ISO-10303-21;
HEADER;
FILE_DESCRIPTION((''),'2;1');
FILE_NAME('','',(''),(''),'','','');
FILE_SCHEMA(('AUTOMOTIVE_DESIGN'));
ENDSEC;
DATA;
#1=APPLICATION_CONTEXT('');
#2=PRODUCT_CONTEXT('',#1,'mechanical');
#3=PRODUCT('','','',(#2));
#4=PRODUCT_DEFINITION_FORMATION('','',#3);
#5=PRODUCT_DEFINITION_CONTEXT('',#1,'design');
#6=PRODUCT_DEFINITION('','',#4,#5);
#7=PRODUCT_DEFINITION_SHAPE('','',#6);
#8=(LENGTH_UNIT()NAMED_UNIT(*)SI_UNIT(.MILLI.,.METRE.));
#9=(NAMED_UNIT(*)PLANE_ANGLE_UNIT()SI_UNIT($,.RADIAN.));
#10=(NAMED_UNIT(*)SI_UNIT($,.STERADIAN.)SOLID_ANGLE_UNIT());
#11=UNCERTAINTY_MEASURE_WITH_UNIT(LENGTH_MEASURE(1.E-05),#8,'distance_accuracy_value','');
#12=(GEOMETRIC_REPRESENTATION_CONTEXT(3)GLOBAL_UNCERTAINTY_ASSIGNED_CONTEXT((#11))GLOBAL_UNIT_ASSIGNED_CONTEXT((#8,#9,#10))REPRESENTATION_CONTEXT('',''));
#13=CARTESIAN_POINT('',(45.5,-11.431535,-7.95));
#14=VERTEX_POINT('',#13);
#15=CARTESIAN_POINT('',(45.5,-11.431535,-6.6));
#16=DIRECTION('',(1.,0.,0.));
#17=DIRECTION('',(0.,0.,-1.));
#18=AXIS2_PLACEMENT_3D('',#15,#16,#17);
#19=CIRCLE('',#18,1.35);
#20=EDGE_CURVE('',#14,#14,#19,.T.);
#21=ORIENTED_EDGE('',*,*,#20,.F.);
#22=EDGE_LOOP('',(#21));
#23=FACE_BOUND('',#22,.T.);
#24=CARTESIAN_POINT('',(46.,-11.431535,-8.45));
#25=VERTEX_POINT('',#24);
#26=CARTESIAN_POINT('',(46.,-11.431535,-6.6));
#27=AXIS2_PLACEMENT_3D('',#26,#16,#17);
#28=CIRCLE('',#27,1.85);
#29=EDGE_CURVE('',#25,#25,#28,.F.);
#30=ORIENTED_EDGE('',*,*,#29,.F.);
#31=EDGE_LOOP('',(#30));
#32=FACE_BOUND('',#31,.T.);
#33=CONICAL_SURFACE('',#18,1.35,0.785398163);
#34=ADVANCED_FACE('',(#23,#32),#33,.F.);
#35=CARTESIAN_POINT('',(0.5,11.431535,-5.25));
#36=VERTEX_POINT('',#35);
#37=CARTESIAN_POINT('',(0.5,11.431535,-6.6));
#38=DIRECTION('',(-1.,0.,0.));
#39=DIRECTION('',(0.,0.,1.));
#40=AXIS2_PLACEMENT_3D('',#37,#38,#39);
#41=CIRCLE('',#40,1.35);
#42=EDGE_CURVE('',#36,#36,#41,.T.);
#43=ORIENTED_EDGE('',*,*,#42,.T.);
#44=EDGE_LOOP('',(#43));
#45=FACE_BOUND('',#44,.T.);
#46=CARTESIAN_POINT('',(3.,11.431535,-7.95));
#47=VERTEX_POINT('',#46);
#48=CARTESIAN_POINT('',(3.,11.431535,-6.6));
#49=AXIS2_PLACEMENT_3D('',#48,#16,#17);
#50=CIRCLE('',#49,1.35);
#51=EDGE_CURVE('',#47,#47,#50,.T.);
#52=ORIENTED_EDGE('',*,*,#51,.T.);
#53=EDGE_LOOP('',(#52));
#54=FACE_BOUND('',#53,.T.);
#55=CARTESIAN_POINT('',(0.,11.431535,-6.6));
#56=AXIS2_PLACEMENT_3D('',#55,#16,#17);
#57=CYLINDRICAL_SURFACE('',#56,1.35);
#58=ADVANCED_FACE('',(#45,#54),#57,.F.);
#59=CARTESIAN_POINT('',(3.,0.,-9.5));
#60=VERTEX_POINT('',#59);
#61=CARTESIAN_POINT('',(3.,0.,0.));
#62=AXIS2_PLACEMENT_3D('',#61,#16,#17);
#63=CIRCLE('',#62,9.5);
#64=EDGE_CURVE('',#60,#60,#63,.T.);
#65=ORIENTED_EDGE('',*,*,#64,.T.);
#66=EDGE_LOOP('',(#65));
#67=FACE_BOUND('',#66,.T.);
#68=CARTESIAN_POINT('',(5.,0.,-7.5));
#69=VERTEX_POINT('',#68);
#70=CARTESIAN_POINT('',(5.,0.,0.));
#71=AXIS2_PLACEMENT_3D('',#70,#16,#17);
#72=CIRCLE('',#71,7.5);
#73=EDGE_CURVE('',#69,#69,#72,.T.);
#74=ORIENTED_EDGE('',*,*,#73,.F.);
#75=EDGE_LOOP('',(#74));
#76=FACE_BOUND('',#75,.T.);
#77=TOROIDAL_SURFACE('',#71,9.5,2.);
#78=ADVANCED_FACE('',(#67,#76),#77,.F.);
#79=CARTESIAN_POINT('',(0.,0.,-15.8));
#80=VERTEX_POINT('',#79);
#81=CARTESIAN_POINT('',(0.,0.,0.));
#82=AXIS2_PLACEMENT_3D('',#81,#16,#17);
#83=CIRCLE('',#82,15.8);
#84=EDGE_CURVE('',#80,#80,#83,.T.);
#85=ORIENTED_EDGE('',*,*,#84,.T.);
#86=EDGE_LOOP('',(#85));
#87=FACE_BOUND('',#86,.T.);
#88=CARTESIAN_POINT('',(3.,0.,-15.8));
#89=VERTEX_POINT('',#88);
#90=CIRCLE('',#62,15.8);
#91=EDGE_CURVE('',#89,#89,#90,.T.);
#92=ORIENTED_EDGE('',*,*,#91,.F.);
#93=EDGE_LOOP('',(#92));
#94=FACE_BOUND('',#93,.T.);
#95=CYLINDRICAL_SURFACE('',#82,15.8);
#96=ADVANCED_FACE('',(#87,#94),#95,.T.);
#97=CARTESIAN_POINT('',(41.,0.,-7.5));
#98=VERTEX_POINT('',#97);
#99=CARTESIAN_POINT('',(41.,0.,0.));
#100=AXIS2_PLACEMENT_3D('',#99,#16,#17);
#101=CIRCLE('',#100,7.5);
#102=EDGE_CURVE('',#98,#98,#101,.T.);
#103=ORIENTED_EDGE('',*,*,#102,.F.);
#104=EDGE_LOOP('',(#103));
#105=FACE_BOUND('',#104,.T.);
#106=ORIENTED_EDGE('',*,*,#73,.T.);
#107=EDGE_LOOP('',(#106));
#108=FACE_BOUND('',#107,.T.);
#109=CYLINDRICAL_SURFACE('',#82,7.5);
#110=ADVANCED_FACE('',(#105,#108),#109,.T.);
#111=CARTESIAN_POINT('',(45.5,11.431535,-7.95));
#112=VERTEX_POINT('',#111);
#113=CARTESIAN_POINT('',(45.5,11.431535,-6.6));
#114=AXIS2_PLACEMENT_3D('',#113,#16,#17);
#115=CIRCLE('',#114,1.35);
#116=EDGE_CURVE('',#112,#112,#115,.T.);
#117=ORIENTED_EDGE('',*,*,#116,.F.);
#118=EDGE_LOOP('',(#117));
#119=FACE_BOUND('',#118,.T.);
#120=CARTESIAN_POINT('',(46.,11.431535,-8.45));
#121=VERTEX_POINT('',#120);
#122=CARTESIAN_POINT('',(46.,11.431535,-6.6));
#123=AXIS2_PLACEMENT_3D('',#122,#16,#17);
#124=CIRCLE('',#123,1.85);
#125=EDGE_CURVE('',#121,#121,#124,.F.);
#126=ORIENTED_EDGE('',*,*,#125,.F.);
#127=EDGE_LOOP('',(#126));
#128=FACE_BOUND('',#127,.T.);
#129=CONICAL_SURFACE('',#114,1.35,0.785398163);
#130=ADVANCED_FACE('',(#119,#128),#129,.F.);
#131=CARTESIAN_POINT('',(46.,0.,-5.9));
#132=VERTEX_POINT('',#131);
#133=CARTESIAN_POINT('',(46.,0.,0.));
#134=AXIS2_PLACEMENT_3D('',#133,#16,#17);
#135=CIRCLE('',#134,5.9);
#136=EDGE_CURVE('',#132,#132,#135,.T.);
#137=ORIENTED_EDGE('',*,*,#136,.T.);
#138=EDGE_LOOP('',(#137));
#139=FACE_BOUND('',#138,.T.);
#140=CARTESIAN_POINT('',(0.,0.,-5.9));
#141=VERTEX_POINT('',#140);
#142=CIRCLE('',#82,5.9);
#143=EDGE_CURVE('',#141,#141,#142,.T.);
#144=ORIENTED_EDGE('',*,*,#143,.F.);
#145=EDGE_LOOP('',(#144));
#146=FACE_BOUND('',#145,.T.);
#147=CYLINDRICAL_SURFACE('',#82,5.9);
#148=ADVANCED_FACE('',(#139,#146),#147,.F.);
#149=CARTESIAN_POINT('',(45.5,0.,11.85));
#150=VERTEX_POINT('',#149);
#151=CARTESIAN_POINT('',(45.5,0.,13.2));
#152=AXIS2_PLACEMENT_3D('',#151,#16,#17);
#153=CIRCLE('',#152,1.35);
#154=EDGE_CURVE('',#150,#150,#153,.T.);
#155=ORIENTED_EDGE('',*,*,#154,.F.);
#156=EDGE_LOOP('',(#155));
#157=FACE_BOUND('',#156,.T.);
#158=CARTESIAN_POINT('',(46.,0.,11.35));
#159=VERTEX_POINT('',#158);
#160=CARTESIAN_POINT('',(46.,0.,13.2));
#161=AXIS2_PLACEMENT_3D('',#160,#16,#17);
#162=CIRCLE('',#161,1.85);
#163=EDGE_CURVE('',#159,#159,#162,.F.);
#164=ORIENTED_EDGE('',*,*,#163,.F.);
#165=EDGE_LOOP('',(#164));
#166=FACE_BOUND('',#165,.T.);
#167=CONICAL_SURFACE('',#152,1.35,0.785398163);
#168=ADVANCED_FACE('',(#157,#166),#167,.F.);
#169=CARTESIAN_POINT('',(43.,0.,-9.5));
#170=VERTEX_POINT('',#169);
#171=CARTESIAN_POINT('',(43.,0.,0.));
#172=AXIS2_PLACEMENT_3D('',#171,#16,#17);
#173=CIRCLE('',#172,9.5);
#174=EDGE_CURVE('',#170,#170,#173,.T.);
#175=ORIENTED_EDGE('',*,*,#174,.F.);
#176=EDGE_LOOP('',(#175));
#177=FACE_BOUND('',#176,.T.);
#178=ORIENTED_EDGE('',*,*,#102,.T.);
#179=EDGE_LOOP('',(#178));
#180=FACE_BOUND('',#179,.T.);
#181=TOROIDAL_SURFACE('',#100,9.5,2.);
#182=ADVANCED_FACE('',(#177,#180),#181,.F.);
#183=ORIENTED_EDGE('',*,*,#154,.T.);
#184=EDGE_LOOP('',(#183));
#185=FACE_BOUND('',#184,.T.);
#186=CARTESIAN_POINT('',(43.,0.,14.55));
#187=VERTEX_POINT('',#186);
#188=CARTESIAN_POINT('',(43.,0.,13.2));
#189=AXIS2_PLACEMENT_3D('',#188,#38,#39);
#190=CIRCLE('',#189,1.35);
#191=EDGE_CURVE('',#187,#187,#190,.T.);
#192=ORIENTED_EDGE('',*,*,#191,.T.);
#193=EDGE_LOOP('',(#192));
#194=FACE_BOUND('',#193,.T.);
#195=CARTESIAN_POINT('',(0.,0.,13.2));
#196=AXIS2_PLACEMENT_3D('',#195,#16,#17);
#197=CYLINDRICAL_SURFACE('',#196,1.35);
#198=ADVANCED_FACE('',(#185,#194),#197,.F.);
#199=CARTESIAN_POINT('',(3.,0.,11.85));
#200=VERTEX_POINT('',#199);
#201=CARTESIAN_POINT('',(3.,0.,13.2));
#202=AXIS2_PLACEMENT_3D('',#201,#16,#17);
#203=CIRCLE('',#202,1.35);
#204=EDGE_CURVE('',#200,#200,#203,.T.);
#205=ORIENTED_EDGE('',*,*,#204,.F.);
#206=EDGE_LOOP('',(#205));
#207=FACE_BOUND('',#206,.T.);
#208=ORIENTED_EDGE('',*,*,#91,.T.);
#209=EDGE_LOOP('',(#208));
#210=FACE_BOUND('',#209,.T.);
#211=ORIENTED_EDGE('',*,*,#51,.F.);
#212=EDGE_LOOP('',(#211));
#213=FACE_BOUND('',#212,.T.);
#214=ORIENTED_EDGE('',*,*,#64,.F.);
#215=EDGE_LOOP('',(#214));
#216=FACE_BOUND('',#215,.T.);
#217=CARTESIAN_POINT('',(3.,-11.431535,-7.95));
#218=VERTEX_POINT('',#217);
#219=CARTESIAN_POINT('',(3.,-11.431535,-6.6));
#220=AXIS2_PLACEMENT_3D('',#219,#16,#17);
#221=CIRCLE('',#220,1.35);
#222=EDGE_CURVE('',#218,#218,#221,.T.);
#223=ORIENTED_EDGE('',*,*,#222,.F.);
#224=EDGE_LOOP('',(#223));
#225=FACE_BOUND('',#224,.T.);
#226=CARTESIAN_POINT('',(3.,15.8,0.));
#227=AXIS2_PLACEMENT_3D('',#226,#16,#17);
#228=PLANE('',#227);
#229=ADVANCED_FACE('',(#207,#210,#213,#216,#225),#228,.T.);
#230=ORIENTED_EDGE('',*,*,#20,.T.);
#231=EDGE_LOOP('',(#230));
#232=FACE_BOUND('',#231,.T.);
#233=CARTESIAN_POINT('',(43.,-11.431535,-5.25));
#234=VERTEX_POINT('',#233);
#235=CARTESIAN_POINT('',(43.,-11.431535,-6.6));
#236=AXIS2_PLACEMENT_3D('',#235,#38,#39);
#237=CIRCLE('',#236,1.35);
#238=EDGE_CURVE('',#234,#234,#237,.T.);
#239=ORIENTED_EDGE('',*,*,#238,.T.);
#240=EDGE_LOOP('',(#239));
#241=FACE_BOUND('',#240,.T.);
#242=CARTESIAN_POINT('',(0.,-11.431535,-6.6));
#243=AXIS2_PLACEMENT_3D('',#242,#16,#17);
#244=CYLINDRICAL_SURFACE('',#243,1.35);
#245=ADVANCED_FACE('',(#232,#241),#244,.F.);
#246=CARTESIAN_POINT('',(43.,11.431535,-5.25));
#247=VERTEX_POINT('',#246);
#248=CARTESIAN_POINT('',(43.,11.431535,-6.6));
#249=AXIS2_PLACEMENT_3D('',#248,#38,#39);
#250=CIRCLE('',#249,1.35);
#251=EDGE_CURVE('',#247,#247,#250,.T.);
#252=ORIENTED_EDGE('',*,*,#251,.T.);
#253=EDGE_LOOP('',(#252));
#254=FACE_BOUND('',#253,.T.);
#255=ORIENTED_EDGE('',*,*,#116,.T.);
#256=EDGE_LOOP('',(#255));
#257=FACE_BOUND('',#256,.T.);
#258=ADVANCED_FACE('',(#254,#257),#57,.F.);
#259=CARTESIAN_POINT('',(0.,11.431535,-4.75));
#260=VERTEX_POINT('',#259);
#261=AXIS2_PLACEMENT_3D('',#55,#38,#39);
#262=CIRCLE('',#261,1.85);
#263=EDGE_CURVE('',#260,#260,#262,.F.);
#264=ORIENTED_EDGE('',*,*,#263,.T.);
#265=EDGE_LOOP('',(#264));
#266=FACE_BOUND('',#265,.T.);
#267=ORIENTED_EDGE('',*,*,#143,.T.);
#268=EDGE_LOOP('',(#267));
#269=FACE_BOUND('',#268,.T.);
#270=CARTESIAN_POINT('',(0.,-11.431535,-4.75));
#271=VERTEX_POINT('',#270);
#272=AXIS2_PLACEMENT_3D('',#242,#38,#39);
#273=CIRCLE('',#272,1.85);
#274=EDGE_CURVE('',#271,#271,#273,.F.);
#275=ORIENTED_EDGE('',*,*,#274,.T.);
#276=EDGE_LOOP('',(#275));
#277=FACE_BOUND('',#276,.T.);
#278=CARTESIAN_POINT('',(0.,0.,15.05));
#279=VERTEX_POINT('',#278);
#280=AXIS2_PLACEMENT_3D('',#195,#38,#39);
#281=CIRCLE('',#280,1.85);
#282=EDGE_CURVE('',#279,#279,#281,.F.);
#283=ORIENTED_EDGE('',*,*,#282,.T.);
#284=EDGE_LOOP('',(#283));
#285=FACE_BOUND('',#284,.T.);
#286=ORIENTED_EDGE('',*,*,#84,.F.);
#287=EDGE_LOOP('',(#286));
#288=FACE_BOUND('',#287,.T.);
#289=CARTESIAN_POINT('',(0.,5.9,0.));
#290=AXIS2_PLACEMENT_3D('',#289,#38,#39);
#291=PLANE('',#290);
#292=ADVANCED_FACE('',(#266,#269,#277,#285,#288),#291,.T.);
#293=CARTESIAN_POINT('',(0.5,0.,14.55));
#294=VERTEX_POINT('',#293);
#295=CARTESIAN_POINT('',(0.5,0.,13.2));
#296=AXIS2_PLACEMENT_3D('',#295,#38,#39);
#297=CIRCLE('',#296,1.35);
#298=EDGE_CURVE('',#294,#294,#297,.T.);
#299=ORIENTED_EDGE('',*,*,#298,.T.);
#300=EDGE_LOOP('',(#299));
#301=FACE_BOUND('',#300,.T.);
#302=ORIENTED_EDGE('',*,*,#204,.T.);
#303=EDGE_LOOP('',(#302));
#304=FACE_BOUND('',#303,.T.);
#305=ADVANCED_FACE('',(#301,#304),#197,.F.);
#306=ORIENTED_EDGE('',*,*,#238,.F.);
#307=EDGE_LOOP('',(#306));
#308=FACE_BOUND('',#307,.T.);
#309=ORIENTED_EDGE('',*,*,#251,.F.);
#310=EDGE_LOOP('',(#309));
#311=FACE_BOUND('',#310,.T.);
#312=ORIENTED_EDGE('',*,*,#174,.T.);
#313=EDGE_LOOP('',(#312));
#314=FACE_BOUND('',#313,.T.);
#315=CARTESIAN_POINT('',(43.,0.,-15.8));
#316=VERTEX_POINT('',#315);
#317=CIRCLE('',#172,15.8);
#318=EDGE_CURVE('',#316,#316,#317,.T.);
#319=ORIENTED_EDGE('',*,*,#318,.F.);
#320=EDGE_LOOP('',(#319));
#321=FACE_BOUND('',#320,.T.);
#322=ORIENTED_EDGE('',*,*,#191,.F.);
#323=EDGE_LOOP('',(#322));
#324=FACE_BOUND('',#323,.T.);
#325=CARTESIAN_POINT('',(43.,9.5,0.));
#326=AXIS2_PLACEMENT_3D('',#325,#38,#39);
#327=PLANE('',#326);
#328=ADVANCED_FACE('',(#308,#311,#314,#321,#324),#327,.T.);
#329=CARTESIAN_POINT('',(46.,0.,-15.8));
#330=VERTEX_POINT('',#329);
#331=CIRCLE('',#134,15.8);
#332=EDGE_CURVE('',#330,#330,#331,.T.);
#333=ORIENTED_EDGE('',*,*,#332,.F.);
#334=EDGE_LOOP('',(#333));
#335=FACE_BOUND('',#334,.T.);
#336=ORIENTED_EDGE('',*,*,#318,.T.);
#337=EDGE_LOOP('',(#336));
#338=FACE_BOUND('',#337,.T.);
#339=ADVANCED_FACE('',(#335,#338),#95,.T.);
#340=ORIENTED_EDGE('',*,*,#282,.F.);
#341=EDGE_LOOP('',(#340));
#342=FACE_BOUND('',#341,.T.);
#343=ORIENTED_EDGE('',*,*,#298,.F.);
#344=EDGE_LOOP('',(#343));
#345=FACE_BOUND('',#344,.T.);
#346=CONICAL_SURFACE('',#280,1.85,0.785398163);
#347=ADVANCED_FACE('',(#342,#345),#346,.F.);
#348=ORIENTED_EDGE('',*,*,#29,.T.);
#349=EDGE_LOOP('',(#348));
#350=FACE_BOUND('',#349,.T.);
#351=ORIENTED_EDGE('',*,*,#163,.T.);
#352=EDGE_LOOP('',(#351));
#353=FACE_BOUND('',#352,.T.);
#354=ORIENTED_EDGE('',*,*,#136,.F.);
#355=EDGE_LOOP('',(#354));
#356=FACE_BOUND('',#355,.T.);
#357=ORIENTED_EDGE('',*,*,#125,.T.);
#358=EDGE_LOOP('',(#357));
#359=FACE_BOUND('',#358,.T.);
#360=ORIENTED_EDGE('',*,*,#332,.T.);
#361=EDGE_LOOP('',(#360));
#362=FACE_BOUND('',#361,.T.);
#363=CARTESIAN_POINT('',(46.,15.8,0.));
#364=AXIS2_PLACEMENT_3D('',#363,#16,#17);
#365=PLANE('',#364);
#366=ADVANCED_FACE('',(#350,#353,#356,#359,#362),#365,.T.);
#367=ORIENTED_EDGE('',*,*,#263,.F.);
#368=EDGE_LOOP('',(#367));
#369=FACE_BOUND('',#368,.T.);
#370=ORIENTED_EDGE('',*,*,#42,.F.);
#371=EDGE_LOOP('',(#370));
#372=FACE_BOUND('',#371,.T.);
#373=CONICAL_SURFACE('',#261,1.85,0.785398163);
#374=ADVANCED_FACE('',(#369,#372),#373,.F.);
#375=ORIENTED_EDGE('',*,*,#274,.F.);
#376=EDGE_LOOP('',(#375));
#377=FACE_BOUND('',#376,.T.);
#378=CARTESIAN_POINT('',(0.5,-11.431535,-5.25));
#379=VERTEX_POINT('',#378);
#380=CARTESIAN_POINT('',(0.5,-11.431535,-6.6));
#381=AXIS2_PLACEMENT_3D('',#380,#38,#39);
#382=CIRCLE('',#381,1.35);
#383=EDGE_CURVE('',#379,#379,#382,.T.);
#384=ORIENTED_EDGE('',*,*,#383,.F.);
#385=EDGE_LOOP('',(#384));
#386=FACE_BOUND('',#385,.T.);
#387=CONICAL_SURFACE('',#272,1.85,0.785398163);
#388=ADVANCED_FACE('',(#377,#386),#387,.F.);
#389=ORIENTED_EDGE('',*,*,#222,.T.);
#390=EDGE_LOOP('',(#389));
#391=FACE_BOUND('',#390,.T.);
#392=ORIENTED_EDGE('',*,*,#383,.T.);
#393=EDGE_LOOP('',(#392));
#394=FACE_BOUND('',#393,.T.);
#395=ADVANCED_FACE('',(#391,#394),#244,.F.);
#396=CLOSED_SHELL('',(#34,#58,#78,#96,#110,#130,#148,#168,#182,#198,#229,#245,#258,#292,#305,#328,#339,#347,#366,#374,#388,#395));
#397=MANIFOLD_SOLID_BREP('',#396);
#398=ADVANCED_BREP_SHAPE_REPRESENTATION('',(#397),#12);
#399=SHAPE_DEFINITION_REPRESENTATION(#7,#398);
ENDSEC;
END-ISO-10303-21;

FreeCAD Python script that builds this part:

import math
import FreeCAD as App
import Part
import Sketcher


def edges_at(feature, points):
    """Names of the edges that pass closest to the given points."""
    edges = feature.Shape.Edges
    near = lambda p: min(range(len(edges)), key=lambda i: edges[i].distToShape(Part.Vertex(*p))[0])
    return sorted({f"Edge{near(p) + 1}" for p in points})

doc = App.newDocument("Part")
body = doc.addObject("PartDesign::Body", "Body")

# Sketch on XY plane
sketch1 = body.newObject("Sketcher::SketchObject", "Sketch")
sketch1.AttachmentSupport = (doc.getObject("XY_Plane"), [""])
sketch1.MapMode = "FlatFace"
sketch1.addGeometry([
    Part.LineSegment(App.Vector(0, 15.8, 0), App.Vector(0, 5.9, 0)),  # 0
    Part.LineSegment(App.Vector(0, 5.9, 0), App.Vector(46, 5.9, 0)),  # 1
    Part.LineSegment(App.Vector(46, 5.9, 0), App.Vector(46, 15.8, 0)),  # 2
    Part.LineSegment(App.Vector(46, 15.8, 0), App.Vector(43, 15.8, 0)),  # 3
    Part.LineSegment(App.Vector(43, 15.8, 0), App.Vector(43, 9.5, 0)),  # 4
    Part.ArcOfCircle(Part.Circle(App.Vector(41, 9.5, 0), App.Vector(0, 0, 1), 2), math.radians(-90), math.radians(0)),  # 5
    Part.LineSegment(App.Vector(41, 7.5, 0), App.Vector(5, 7.5, 0)),  # 6
    Part.ArcOfCircle(Part.Circle(App.Vector(5, 9.5, 0), App.Vector(0, 0, 1), 2), math.radians(-180), math.radians(-90)),  # 7
    Part.LineSegment(App.Vector(3, 9.5, 0), App.Vector(3, 15.8, 0)),  # 8
    Part.LineSegment(App.Vector(3, 15.8, 0), App.Vector(0, 15.8, 0)),  # 9
], False)
sketch1.addConstraint([
    Sketcher.Constraint("Coincident", 0, 2, 1, 1),
    Sketcher.Constraint("Coincident", 1, 2, 2, 1),
    Sketcher.Constraint("Coincident", 2, 2, 3, 1),
    Sketcher.Constraint("Coincident", 3, 2, 4, 1),
    Sketcher.Constraint("Tangent", 4, 2, 5, 2),
    Sketcher.Constraint("Tangent", 5, 1, 6, 1),
    Sketcher.Constraint("Tangent", 6, 2, 7, 2),
    Sketcher.Constraint("Tangent", 7, 1, 8, 1),
    Sketcher.Constraint("Coincident", 8, 2, 9, 1),
    Sketcher.Constraint("Coincident", 9, 2, 0, 1),
    Sketcher.Constraint("Vertical", 0),
    Sketcher.Constraint("Horizontal", 1),
    Sketcher.Constraint("Vertical", 2),
    Sketcher.Constraint("Horizontal", 3),
    Sketcher.Constraint("Vertical", 4),
    Sketcher.Constraint("Horizontal", 6),
    Sketcher.Constraint("Vertical", 8),
    Sketcher.Constraint("Horizontal", 9),
    Sketcher.Constraint("Equal", 5, 7),
    Sketcher.Constraint("PointOnObject", 0, 2, -2),
    Sketcher.Constraint("Horizontal", 3, 2, 8, 2),
    Sketcher.Constraint("Equal", 3, 9),
    Sketcher.Constraint("Radius", 5, 2.0),
    Sketcher.Constraint("DistanceX", 1, 1, 1, 2, 46.0),
    Sketcher.Constraint("DistanceX", 3, 2, 3, 1, 3.0),
    Sketcher.Constraint("DistanceY", 0, 2, 0, 1, 9.9),
    Sketcher.Constraint("DistanceY", 4, 2, 4, 1, 6.3),
    Sketcher.Constraint("DistanceY", -1, 1, 5, 3, 9.5),
])
revolution = body.newObject("PartDesign::Revolution", "Revolution")
revolution.Profile = sketch1
revolution.ReferenceAxis = (sketch1, ["H_Axis"])
revolution.Angle = 360

# Sketch on YZ plane
sketch2 = body.newObject("Sketcher::SketchObject", "Sketch001")
sketch2.AttachmentSupport = (doc.getObject("YZ_Plane"), [""])
sketch2.MapMode = "FlatFace"
sketch2.AttachmentOffset = App.Placement(App.Vector(0, 0, 46), App.Rotation())
sketch2.addGeometry([
    Part.Circle(App.Vector(0, 13.2, 0), App.Vector(0, 0, 1), 1.35),
    Part.Circle(App.Vector(11.431535, -6.6, 0), App.Vector(0, 0, 1), 1.35),
    Part.Circle(App.Vector(-11.431535, -6.6, 0), App.Vector(0, 0, 1), 1.35),
], False)
sketch2.addConstraint([
    Sketcher.Constraint("Equal", 0, 1),
    Sketcher.Constraint("Equal", 1, 2),
    Sketcher.Constraint("Symmetric", 1, 3, 2, 3, -2),
    Sketcher.Constraint("PointOnObject", 0, 3, -2),
    Sketcher.Constraint("Diameter", 0, 2.7),
    Sketcher.Constraint("DistanceY", -1, 1, 0, 3, 13.2),
    Sketcher.Constraint("DistanceY", 1, 3, -1, 1, 6.6),
    Sketcher.Constraint("DistanceX", 2, 3, 1, 3, 22.863071),
])
pocket1 = body.newObject("PartDesign::Pocket", "Pocket")
pocket1.Profile = sketch2
pocket1.Type = "ThroughAll"
doc.recompute()

chamfer = body.newObject("PartDesign::Chamfer", "Chamfer")
chamfer.Base = (pocket1, edges_at(pocket1, [
    (0, 0, 14.55),
    (46, 0, 14.55),
    (0, 11.432, -5.25),
    (46, 11.432, -5.25),
    (0, -11.432, -5.25),
    (46, -11.432, -5.25),
]))
chamfer.Size = 0.5

doc.recompute()
